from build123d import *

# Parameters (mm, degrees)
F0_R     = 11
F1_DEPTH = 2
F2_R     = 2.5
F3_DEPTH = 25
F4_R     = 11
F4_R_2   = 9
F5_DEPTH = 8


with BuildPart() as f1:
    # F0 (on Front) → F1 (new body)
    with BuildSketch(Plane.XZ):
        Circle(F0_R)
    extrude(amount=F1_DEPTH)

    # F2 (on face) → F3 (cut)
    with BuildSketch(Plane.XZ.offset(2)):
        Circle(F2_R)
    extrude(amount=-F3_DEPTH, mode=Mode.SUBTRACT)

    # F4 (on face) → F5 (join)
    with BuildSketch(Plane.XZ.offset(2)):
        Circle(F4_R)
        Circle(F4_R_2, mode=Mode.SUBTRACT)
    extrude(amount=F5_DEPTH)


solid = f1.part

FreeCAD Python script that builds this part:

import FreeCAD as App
import Part
import Sketcher

doc = App.newDocument("Part")
body = doc.addObject("PartDesign::Body", "Body")

# Sketch on XZ plane
sketch1 = body.newObject("Sketcher::SketchObject", "Sketch")
sketch1.AttachmentSupport = (doc.getObject("XZ_Plane"), [""])
sketch1.MapMode = "FlatFace"
sketch1.addGeometry(Part.Circle(App.Vector(0, 0, 0), App.Vector(0, 0, 1), 11), False)
sketch1.addConstraint(Sketcher.Constraint("Coincident", 0, 3, -1, 1))
sketch1.addConstraint(Sketcher.Constraint("Diameter", 0, 22.0))
pad1 = body.newObject("PartDesign::Pad", "Pad")
pad1.Profile = sketch1
pad1.Length = 2

# Sketch on XZ plane
sketch2 = body.newObject("Sketcher::SketchObject", "Sketch001")
sketch2.AttachmentSupport = (doc.getObject("XZ_Plane"), [""])
sketch2.MapMode = "FlatFace"
sketch2.AttachmentOffset = App.Placement(App.Vector(0, 0, 2), App.Rotation())
sketch2.addGeometry(Part.Circle(App.Vector(0, 0, 0), App.Vector(0, 0, 1), 2.5), False)
sketch2.addConstraint(Sketcher.Constraint("Coincident", 0, 3, -1, 1))
sketch2.addConstraint(Sketcher.Constraint("Diameter", 0, 5.0))
pocket1 = body.newObject("PartDesign::Pocket", "Pocket")
pocket1.Profile = sketch2
pocket1.Length = 25

# Sketch on XZ plane
sketch3 = body.newObject("Sketcher::SketchObject", "Sketch002")
sketch3.AttachmentSupport = (doc.getObject("XZ_Plane"), [""])
sketch3.MapMode = "FlatFace"
sketch3.AttachmentOffset = App.Placement(App.Vector(0, 0, 2), App.Rotation())
sketch3.addGeometry(Part.Circle(App.Vector(0, 0, 0), App.Vector(0, 0, 1), 11), False)
sketch3.addGeometry(Part.Circle(App.Vector(0, 0, 0), App.Vector(0, 0, 1), 9), False)
sketch3.addConstraint(Sketcher.Constraint("Coincident", 0, 3, -1, 1))
sketch3.addConstraint(Sketcher.Constraint("Coincident", 1, 3, -1, 1))
sketch3.addConstraint(Sketcher.Constraint("Diameter", 0, 22.0))
sketch3.addConstraint(Sketcher.Constraint("Diameter", 1, 18.0))
pad2 = body.newObject("PartDesign::Pad", "Pad001")
pad2.Profile = sketch3
pad2.Length = 8

doc.recompute()
